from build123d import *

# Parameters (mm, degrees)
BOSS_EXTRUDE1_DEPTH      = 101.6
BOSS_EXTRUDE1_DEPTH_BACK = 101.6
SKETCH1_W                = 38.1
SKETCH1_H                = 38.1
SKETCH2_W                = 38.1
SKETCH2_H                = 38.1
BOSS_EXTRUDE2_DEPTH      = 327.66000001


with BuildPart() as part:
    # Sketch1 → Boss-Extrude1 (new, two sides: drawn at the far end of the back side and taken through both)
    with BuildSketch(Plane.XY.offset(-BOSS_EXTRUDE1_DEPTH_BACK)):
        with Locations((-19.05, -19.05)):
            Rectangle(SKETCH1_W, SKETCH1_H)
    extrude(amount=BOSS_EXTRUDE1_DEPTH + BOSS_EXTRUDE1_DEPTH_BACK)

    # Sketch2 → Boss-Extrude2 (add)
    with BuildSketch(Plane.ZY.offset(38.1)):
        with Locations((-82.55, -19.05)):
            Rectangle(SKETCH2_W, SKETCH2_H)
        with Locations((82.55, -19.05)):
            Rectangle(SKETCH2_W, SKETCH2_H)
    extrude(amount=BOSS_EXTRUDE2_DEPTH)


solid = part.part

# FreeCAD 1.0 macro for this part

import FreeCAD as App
import Part
import Sketcher

V = App.Vector
Q = App.Units.Quantity


def add_polygon(sketch, points):
    """Adds a closed chain of lines whose ends are joined by coincident constraints."""
    first, n = sketch.GeometryCount, len(points)
    for a, b in zip(points, points[1:] + points[:1]):
        sketch.addGeometry(Part.LineSegment(App.Vector(*a, 0), App.Vector(*b, 0)), False)
    for i in range(n):
        sketch.addConstraint(Sketcher.Constraint("Coincident", first + i, 2, first + (i + 1) % n, 1))

doc = App.newDocument("Part")
body = doc.addObject("PartDesign::Body", "Body")

# Sketch on XY plane
sketch1 = body.newObject("Sketcher::SketchObject", "Sketch")
sketch1.AttachmentSupport = (doc.getObject("XY_Plane"), [""])
sketch1.MapMode = "FlatFace"
add_polygon(sketch1, [(-38, 0), (-38, -38), (0, -38), (0, 0)])  # lines 0-3
sketch1.addConstraint([
    Sketcher.Constraint("Vertical", 0),
    Sketcher.Constraint("Horizontal", 1),
    Sketcher.Constraint("Vertical", 2),
    Sketcher.Constraint("Horizontal", 3),
    Sketcher.Constraint("Coincident", 2, 2, -1, 1),
    Sketcher.Constraint("Equal", 3, 0),
    Sketcher.Constraint("DistanceX", 1, 1, 1, 2, Q("1.5 in")),
])
pad1 = body.newObject("PartDesign::Pad", "Pad")
pad1.Profile = sketch1
pad1.Type = "TwoLengths"
pad1.Length = Q("4 in")
pad1.Length2 = Q("4 in")

# Sketch on YZ plane
sketch2 = body.newObject("Sketcher::SketchObject", "Sketch001")
sketch2.AttachmentSupport = (doc.getObject("YZ_Plane"), [""])
sketch2.MapMode = "FlatFace"
sketch2.AttachmentOffset = App.Placement(V(0, 0, -1.5 * 25.4), App.Rotation())
add_polygon(sketch2, [(0, -102), (-38, -102), (-38, -64), (0, -64)])  # lines 0-3
add_polygon(sketch2, [(0, 64), (-38, 64), (-38, 102), (0, 102)])  # lines 4-7
sketch2.addConstraint([
    Sketcher.Constraint("Horizontal", 0),
    Sketcher.Constraint("Vertical", 1),
    Sketcher.Constraint("Horizontal", 2),
    Sketcher.Constraint("Vertical", 3),
    Sketcher.Constraint("Horizontal", 4),
    Sketcher.Constraint("Vertical", 5),
    Sketcher.Constraint("Horizontal", 6),
    Sketcher.Constraint("Vertical", 7),
    Sketcher.Constraint("Symmetric", 3, 2, 6, 2, -1, 1),
    Sketcher.Constraint("Symmetric", 1, 2, 4, 2, -1),
    Sketcher.Constraint("PointOnObject", 2, 2, -2),
    Sketcher.Constraint("Equal", 6, 1),
    Sketcher.Constraint("DistanceX", 0, 2, 0, 1, Q("1.5 in")),
    Sketcher.Constraint("DistanceY", 0, 2, -1, 1, Q("4 in")),
])
pad2 = body.newObject("PartDesign::Pad", "Pad001")
pad2.Profile = sketch2
pad2.Length = Q("12.9 in")
pad2.Reversed = True

doc.recompute()
